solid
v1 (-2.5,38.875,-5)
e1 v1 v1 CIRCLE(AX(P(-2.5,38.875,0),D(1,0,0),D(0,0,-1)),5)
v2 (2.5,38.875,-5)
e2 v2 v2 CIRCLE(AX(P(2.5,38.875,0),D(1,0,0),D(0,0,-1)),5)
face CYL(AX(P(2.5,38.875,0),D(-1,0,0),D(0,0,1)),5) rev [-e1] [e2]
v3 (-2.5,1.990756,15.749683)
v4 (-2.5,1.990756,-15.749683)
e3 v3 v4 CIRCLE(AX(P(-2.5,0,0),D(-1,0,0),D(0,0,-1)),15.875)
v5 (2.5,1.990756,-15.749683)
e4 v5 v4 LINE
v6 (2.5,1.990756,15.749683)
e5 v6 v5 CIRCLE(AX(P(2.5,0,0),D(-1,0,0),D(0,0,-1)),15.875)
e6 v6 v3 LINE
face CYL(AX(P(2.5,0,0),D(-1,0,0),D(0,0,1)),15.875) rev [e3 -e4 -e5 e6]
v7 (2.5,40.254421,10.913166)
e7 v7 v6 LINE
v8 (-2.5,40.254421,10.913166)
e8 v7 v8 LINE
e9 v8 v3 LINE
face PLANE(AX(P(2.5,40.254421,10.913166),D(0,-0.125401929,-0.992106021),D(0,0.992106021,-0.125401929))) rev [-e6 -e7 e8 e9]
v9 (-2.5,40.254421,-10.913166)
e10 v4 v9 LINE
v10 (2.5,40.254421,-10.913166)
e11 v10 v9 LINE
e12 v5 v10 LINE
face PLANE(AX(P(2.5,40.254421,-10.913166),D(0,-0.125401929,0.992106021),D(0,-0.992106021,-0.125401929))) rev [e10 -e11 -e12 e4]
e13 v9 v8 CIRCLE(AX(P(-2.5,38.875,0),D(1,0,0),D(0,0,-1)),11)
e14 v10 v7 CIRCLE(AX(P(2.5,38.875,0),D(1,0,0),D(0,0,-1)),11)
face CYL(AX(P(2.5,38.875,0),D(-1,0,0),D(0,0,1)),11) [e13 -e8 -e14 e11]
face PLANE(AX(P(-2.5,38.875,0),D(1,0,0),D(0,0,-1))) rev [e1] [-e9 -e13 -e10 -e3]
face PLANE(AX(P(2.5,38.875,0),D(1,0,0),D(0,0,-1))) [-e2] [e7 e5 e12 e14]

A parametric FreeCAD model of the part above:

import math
import FreeCAD as App
import Part
import Sketcher

doc = App.newDocument("Part")
body = doc.addObject("PartDesign::Body", "Body")

sketch1 = body.newObject("Sketcher::SketchObject", "Sketch")
sketch1.AttachmentSupport = (doc.getObject("YZ_Plane"), [""])
sketch1.MapMode = "FlatFace"
sketch1.addGeometry([
    Part.LineSegment(App.Vector(40.254421, 10.913166, 0), App.Vector(1.990756, 15.749683, 0)),
    Part.ArcOfCircle(Part.Circle(App.Vector(0, 0, 0), App.Vector(0, 0, 1), 15.875), math.radians(-82.796033), math.radians(82.796033)),
    Part.LineSegment(App.Vector(1.990756, -15.749683, 0), App.Vector(40.254421, -10.913166, 0)),
    Part.ArcOfCircle(Part.Circle(App.Vector(38.875, 0, 0), App.Vector(0, 0, 1), 11), math.radians(-82.796033), math.radians(82.796033)),
    Part.Circle(App.Vector(38.875, 0, 0), App.Vector(0, 0, 1), 5),
], False)
sketch1.addConstraint([
    Sketcher.Constraint("Tangent", 0, 2, 1, 2),
    Sketcher.Constraint("Tangent", 1, 1, 2, 1),
    Sketcher.Constraint("Tangent", 2, 2, 3, 1),
    Sketcher.Constraint("Tangent", 3, 2, 0, 1),
    Sketcher.Constraint("Coincident", 1, 3, -1, 1),
    Sketcher.Constraint("Coincident", 4, 3, 3, 3),
    Sketcher.Constraint("PointOnObject", 3, 3, -1),
    Sketcher.Constraint("Diameter", 4, 10.0),
    Sketcher.Constraint("Radius", 3, 11.0),
    Sketcher.Constraint("Radius", 1, 15.875),
    Sketcher.Constraint("DistanceX", -1, 1, 3, 3, 38.875),
])
pad1 = body.newObject("PartDesign::Pad", "Pad")
pad1.Profile = sketch1
pad1.Length = 5
pad1.Midplane = True

doc.recompute()
